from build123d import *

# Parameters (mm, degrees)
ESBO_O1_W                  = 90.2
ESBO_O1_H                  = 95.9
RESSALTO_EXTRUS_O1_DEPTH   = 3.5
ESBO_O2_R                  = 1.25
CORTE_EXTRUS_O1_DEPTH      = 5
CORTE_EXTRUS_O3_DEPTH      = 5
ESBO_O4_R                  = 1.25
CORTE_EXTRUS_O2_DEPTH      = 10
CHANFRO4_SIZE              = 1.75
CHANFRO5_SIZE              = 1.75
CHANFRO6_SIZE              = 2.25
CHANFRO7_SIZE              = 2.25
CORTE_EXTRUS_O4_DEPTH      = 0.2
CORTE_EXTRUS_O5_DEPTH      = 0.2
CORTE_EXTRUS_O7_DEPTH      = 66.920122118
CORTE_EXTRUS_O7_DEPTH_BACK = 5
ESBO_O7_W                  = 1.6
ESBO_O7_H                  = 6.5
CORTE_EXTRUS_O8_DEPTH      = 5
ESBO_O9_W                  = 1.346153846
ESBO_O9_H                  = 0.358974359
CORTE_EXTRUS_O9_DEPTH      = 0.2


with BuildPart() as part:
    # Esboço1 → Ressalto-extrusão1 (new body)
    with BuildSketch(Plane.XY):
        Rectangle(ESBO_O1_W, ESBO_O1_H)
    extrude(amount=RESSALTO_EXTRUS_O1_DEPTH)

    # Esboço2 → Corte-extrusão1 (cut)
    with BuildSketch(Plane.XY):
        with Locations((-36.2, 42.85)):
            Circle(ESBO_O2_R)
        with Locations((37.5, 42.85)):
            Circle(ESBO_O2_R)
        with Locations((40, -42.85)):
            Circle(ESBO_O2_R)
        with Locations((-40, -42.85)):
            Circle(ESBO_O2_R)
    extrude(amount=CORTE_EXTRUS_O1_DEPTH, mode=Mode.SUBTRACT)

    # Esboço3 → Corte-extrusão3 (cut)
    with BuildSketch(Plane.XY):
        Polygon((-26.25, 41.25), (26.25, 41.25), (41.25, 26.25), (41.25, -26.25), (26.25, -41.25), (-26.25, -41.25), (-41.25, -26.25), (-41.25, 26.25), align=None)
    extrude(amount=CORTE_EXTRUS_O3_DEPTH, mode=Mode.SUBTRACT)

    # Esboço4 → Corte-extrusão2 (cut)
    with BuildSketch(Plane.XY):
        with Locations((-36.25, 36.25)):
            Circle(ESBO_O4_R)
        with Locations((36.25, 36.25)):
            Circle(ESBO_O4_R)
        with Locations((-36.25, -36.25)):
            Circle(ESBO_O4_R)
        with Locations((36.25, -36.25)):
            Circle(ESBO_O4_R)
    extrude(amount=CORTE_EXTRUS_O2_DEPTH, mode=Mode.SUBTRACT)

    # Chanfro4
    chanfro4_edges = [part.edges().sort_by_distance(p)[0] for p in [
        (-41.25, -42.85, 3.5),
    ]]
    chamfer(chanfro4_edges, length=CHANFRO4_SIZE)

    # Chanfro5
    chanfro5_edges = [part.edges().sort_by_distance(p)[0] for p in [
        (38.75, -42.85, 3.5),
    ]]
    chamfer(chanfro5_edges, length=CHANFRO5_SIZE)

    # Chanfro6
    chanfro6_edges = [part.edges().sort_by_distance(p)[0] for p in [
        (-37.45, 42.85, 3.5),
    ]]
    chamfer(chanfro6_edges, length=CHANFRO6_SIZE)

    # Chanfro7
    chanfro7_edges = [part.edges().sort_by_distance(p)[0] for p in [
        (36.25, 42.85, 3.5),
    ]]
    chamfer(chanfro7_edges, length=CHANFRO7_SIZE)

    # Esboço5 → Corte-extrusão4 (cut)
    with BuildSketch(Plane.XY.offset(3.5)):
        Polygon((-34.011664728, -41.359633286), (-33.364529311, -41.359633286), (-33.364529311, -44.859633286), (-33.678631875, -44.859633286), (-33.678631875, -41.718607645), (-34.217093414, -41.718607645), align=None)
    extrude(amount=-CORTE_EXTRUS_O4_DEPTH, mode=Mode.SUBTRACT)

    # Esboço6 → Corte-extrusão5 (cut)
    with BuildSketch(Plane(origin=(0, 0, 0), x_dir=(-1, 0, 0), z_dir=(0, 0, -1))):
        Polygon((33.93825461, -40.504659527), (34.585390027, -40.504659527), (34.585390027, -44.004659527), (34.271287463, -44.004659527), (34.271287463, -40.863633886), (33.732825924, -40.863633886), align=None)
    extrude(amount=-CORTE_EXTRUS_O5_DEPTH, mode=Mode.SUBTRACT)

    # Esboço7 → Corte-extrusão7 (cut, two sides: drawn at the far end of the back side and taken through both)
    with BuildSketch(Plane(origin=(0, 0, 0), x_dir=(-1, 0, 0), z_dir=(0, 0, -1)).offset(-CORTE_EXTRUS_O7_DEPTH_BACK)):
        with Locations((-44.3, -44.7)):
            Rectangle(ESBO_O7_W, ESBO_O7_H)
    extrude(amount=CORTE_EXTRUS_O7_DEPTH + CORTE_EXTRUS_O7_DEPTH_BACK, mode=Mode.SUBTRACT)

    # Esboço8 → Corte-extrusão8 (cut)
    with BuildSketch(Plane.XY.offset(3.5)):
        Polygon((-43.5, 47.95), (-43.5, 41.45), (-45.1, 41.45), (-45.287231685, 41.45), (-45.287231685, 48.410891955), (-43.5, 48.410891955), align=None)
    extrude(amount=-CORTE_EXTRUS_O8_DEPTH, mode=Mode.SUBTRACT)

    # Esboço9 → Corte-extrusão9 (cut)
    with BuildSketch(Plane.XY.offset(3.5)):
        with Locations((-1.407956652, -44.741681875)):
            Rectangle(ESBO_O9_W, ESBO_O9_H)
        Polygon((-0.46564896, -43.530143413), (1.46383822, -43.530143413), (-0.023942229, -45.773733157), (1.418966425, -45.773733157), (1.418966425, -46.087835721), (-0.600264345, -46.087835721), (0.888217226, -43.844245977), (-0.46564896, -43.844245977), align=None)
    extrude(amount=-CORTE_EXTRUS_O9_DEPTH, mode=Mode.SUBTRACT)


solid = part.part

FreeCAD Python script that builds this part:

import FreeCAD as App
import Part
import Sketcher

V = App.Vector
Q = App.Units.Quantity


def edges_at(feature, points):
    """Names of the edges that pass closest to the given points."""
    edges = feature.Shape.Edges
    near = lambda p: min(range(len(edges)), key=lambda i: edges[i].distToShape(Part.Vertex(*p))[0])
    return sorted({f"Edge{near(p) + 1}" for p in points})


def add_polygon(sketch, points):
    """Adds a closed chain of lines whose ends are joined by coincident constraints."""
    first, n = sketch.GeometryCount, len(points)
    for a, b in zip(points, points[1:] + points[:1]):
        sketch.addGeometry(Part.LineSegment(App.Vector(*a, 0), App.Vector(*b, 0)), False)
    for i in range(n):
        sketch.addConstraint(Sketcher.Constraint("Coincident", first + i, 2, first + (i + 1) % n, 1))

doc = App.newDocument("Part")
body = doc.addObject("PartDesign::Body", "Body")

# Sketch on XY plane
sketch1 = doc.addObject("Sketcher::SketchObject", "Sketch")
body.addObject(sketch1)
sketch1.AttachmentSupport = (doc.XY_Plane, [""])
sketch1.MapMode = "FlatFace"
add_polygon(sketch1, [(-45, 48), (-45, -48), (45, -48), (45, 48)])  # lines 0-3
sketch1.addConstraint([
    Sketcher.Constraint("Vertical", 0),
    Sketcher.Constraint("Horizontal", 1),
    Sketcher.Constraint("Vertical", 2),
    Sketcher.Constraint("Horizontal", 3),
    Sketcher.Constraint("Symmetric", 0, 2, 2, 2, -1, 1),
    Sketcher.Constraint("DistanceX", 1, 1, 1, 2, Q("90.2 mm")),
    Sketcher.Constraint("DistanceY", 0, 2, 0, 1, Q("95.9 mm")),
])
pad1 = doc.addObject("PartDesign::Pad", "Pad")
body.addObject(pad1)
pad1.Profile = sketch1
pad1.Length = 3.5

# Sketch on XY plane
sketch2 = doc.addObject("Sketcher::SketchObject", "Sketch001")
body.addObject(sketch2)
sketch2.AttachmentSupport = (doc.XY_Plane, [""])
sketch2.MapMode = "FlatFace"
sketch2.addGeometry([
    Part.Circle(V(-36.2, 42.9, 0), V(0, 0, 1), 1.2),
    Part.Circle(V(37.5, 42.9, 0), V(0, 0, 1), 1.2),
    Part.Circle(V(40, -42.9, 0), V(0, 0, 1), 1.2),
    Part.Circle(V(-40, -42.9, 0), V(0, 0, 1), 1.2),
], False)
sketch2.addConstraint([
    Sketcher.Constraint("Equal", 0, 1),
    Sketcher.Constraint("Equal", 1, 2),
    Sketcher.Constraint("Equal", 2, 3),
    Sketcher.Constraint("Symmetric", 2, 3, 3, 3, -2),
    Sketcher.Constraint("Horizontal", 0, 3, 1, 3),
    Sketcher.Constraint("Diameter", 0, Q("2.5 mm")),
    Sketcher.Constraint("DistanceX", -1, 1, 2, 3, Q("40 mm")),
    Sketcher.Constraint("DistanceX", 0, 3, -1, 1, Q("36.2 mm")),
    Sketcher.Constraint("DistanceX", -1, 1, 1, 3, Q("37.5 mm")),
    Sketcher.Constraint("DistanceY", 2, 3, 1, 3, Q("85.7 mm")),
    Sketcher.Constraint("DistanceY", -1, 1, 0, 3, Q("42.85 mm")),
])
pocket1 = doc.addObject("PartDesign::Pocket", "Pocket")
body.addObject(pocket1)
pocket1.Profile = sketch2
pocket1.Length = 5
pocket1.Reversed = True

# Sketch on XY plane
sketch3 = doc.addObject("Sketcher::SketchObject", "Sketch002")
body.addObject(sketch3)
sketch3.AttachmentSupport = (doc.XY_Plane, [""])
sketch3.MapMode = "FlatFace"
add_polygon(sketch3, [(26, 41), (-26, 41), (-41, 26), (-41, -26), (-26, -41), (26, -41), (41, -26), (41, 26)])  # lines 0-7
sketch3.addConstraint([
    Sketcher.Constraint("Horizontal", 0),
    Sketcher.Constraint("Vertical", 2),
    Sketcher.Constraint("Horizontal", 4),
    Sketcher.Constraint("Vertical", 6),
    Sketcher.Constraint("Symmetric", 0, 2, 4, 2, -1, 1),
    Sketcher.Constraint("Symmetric", 1, 2, 5, 2, -1, 1),
    Sketcher.Constraint("Perpendicular", 1, 3),
    Sketcher.Constraint("Perpendicular", 5, 7),
    Sketcher.Constraint("Horizontal", 2, 2, 5, 2),
    Sketcher.Constraint("Horizontal", 1, 2, 6, 2),
    Sketcher.Constraint("Vertical", 0, 2, 3, 2),
    Sketcher.Constraint("Equal", 4, 2),
    Sketcher.Constraint("DistanceX", 0, 2, 0, 1, Q("52.5 mm")),
    Sketcher.Constraint("DistanceX", 1, 2, 0, 2, Q("15 mm")),
])
pocket2 = doc.addObject("PartDesign::Pocket", "Pocket001")
body.addObject(pocket2)
pocket2.Profile = sketch3
pocket2.Length = 5
pocket2.Reversed = True

# Sketch on XY plane
sketch4 = doc.addObject("Sketcher::SketchObject", "Sketch003")
body.addObject(sketch4)
sketch4.AttachmentSupport = (doc.XY_Plane, [""])
sketch4.MapMode = "FlatFace"
sketch4.addGeometry([
    Part.Circle(V(-36.2, 36.2, 0), V(0, 0, 1), 1.2),
    Part.Circle(V(36.2, 36.2, 0), V(0, 0, 1), 1.2),
    Part.Circle(V(-36.2, -36.2, 0), V(0, 0, 1), 1.2),
    Part.Circle(V(36.2, -36.2, 0), V(0, 0, 1), 1.2),
], False)
sketch4.addConstraint([
    Sketcher.Constraint("Equal", 0, 1),
    Sketcher.Constraint("Equal", 1, 2),
    Sketcher.Constraint("Equal", 2, 3),
    Sketcher.Constraint("Symmetric", 1, 3, 2, 3, -1, 1),
    Sketcher.Constraint("Symmetric", 0, 3, 3, 3, -1, 1),
    Sketcher.Constraint("Symmetric", 0, 3, 1, 3, -2),
    Sketcher.Constraint("Diameter", 0, Q("2.5 mm")),
    Sketcher.Constraint("DistanceX", 0, 3, 1, 3, Q("72.5 mm")),
    Sketcher.Constraint("DistanceY", 2, 3, 0, 3, Q("72.5 mm")),
])
pocket3 = doc.addObject("PartDesign::Pocket", "Pocket002")
body.addObject(pocket3)
pocket3.Profile = sketch4
pocket3.Length = 10
pocket3.Reversed = True
doc.recompute()

chamfer = doc.addObject("PartDesign::Chamfer", "Chamfer")
body.addObject(chamfer)
chamfer.Base = (pocket3, edges_at(pocket3, [(-41.25, -42.85, 3.5)]))
chamfer.Size = 1.75
doc.recompute()

chamfer2 = doc.addObject("PartDesign::Chamfer", "Chamfer001")
body.addObject(chamfer2)
chamfer2.Base = (chamfer, edges_at(chamfer, [(38.75, -42.85, 3.5)]))
chamfer2.Size = 1.75
doc.recompute()

chamfer3 = doc.addObject("PartDesign::Chamfer", "Chamfer002")
body.addObject(chamfer3)
chamfer3.Base = (chamfer2, edges_at(chamfer2, [(-37.45, 42.85, 3.5)]))
chamfer3.Size = 2.25
doc.recompute()

chamfer4 = doc.addObject("PartDesign::Chamfer", "Chamfer003")
body.addObject(chamfer4)
chamfer4.Base = (chamfer3, edges_at(chamfer3, [(36.25, 42.85, 3.5)]))
chamfer4.Size = 2.25

# Sketch on XY plane
sketch5 = doc.addObject("Sketcher::SketchObject", "Sketch004")
body.addObject(sketch5)
sketch5.AttachmentSupport = (doc.XY_Plane, [""])
sketch5.MapMode = "FlatFace"
sketch5.AttachmentOffset = App.Placement(V(0, 0, 3.5), App.Rotation())
add_polygon(sketch5, [(-33.36, -41.36), (-34.01, -41.36), (-34.22, -41.72), (-33.68, -41.72), (-33.68, -44.86), (-33.36, -44.86)])  # lines 0-5
sketch5.addConstraint([
    Sketcher.Constraint("Horizontal", 0),
    Sketcher.Constraint("Horizontal", 2),
    Sketcher.Constraint("Vertical", 3),
    Sketcher.Constraint("Horizontal", 4),
    Sketcher.Constraint("Vertical", 5),
    Sketcher.Constraint("DistanceY", 5, 1, 5, 2, Q("3.5 mm")),
    Sketcher.Constraint("Distance", 1, Q("0.413598 mm")),
    Sketcher.Constraint("DistanceX", 2, 1, 2, 2, Q("0.538462 mm")),
    Sketcher.Constraint("DistanceX", 0, 2, 0, 1, Q("0.647135 mm")),
    Sketcher.Constraint("DistanceX", 4, 1, 4, 2, Q("0.314103 mm")),
    Sketcher.Constraint("DistanceX", 2, 2, -1, 1, Q("33.678632 mm")),
    Sketcher.Constraint("DistanceY", 0, 2, -1, 1, Q("41.359633 mm")),
])
pocket4 = doc.addObject("PartDesign::Pocket", "Pocket003")
body.addObject(pocket4)
pocket4.Profile = sketch5
pocket4.Length = 0.2

# Sketch on XY plane
sketch6 = doc.addObject("Sketcher::SketchObject", "Sketch005")
body.addObject(sketch6)
sketch6.AttachmentSupport = (doc.XY_Plane, [""])
sketch6.MapMode = "FlatFace"
add_polygon(sketch6, [(-34.59, -40.5), (-33.94, -40.5), (-33.73, -40.86), (-34.27, -40.86), (-34.27, -44), (-34.59, -44)])  # lines 0-5
sketch6.addConstraint([
    Sketcher.Constraint("Horizontal", 0),
    Sketcher.Constraint("Horizontal", 2),
    Sketcher.Constraint("Vertical", 3),
    Sketcher.Constraint("Horizontal", 4),
    Sketcher.Constraint("Vertical", 5),
    Sketcher.Constraint("DistanceY", 5, 1, 5, 2, Q("3.5 mm")),
    Sketcher.Constraint("Distance", 1, Q("0.413598 mm")),
    Sketcher.Constraint("DistanceX", 2, 2, 2, 1, Q("0.538462 mm")),
    Sketcher.Constraint("DistanceX", 0, 1, 0, 2, Q("0.647135 mm")),
    Sketcher.Constraint("DistanceX", 4, 2, 4, 1, Q("0.314103 mm")),
    Sketcher.Constraint("DistanceY", 0, 2, -1, 1, Q("40.50466 mm")),
    Sketcher.Constraint("DistanceX", 4, 2, -1, 1, Q("34.58539 mm")),
])
pocket5 = doc.addObject("PartDesign::Pocket", "Pocket004")
body.addObject(pocket5)
pocket5.Profile = sketch6
pocket5.Length = 0.2
pocket5.Reversed = True

# Sketch on XY plane
sketch7 = doc.addObject("Sketcher::SketchObject", "Sketch006")
body.addObject(sketch7)
sketch7.AttachmentSupport = (doc.XY_Plane, [""])
sketch7.MapMode = "FlatFace"
add_polygon(sketch7, [(45.1, -41.5), (45.1, -48), (43.5, -48), (43.5, -41.5)])  # lines 0-3
sketch7.addConstraint([
    Sketcher.Constraint("Vertical", 0),
    Sketcher.Constraint("Horizontal", 1),
    Sketcher.Constraint("Vertical", 2),
    Sketcher.Constraint("Horizontal", 3),
    Sketcher.Constraint("DistanceX", 1, 2, 1, 1, Q("1.6 mm")),
    Sketcher.Constraint("DistanceY", 0, 2, 0, 1, Q("6.5 mm")),
    Sketcher.Constraint("DistanceX", -1, 1, 0, 2, Q("45.1 mm")),
    Sketcher.Constraint("DistanceY", 0, 2, -1, 1, Q("47.95 mm")),
])
pocket6 = doc.addObject("PartDesign::Pocket", "Pocket005")
body.addObject(pocket6)
pocket6.Profile = sketch7
pocket6.Type = "ThroughAll"
pocket6.Midplane = True

# Sketch on XY plane
sketch8 = doc.addObject("Sketcher::SketchObject", "Sketch007")
body.addObject(sketch8)
sketch8.AttachmentSupport = (doc.XY_Plane, [""])
sketch8.MapMode = "FlatFace"
sketch8.AttachmentOffset = App.Placement(V(0, 0, 3.5), App.Rotation())
add_polygon(sketch8, [(-43.5, 41.5), (-43.5, 48.4), (-45.3, 48.4), (-45.3, 41.5)])  # lines 0-3
sketch8.addConstraint([
    Sketcher.Constraint("Vertical", 0),
    Sketcher.Constraint("Horizontal", 1),
    Sketcher.Constraint("Vertical", 2),
    Sketcher.Constraint("Horizontal", 3),
    Sketcher.Constraint("DistanceX", 0, 2, -1, 1, Q("43.5 mm")),
    Sketcher.Constraint("DistanceY", -1, 1, 2, 2, Q("41.45 mm")),
    Sketcher.Constraint("DistanceX", 1, 2, 1, 1, Q("1.787232 mm")),
    Sketcher.Constraint("DistanceY", 0, 1, 0, 2, Q("6.960892 mm")),
])
pocket7 = doc.addObject("PartDesign::Pocket", "Pocket006")
body.addObject(pocket7)
pocket7.Profile = sketch8
pocket7.Length = 5

# Sketch on XY plane
sketch9 = doc.addObject("Sketcher::SketchObject", "Sketch008")
body.addObject(sketch9)
sketch9.AttachmentSupport = (doc.XY_Plane, [""])
sketch9.MapMode = "FlatFace"
sketch9.AttachmentOffset = App.Placement(V(0, 0, 3.5), App.Rotation())
add_polygon(sketch9, [(-2.08, -44.56), (-2.08, -44.92), (-0.73, -44.92), (-0.73, -44.56)])  # lines 0-3
add_polygon(sketch9, [(1.46, -43.53), (-0.47, -43.53), (-0.47, -43.84), (0.89, -43.84), (-0.6, -46.09), (1.42, -46.09), (1.42, -45.77), (-0.02, -45.77)])  # lines 4-11
sketch9.addConstraint([
    Sketcher.Constraint("Vertical", 0),
    Sketcher.Constraint("Horizontal", 1),
    Sketcher.Constraint("Vertical", 2),
    Sketcher.Constraint("Horizontal", 3),
    Sketcher.Constraint("Horizontal", 4),
    Sketcher.Constraint("Vertical", 5),
    Sketcher.Constraint("Horizontal", 6),
    Sketcher.Constraint("Horizontal", 8),
    Sketcher.Constraint("Vertical", 9),
    Sketcher.Constraint("Horizontal", 10),
    Sketcher.Constraint("Equal", 5, 9),
    Sketcher.Constraint("DistanceX", 8, 1, 8, 2, Q("2.019231 mm")),
    Sketcher.Constraint("DistanceX", 10, 2, 10, 1, Q("1.442909 mm")),
    Sketcher.Constraint("Distance", 11, Q("2.69206 mm")),
    Sketcher.Constraint("DistanceX", 1, 1, 1, 2, Q("1.346154 mm")),
    Sketcher.Constraint("DistanceX", 4, 2, 4, 1, Q("1.929487 mm")),
    Sketcher.Constraint("DistanceX", 6, 1, 6, 2, Q("1.353866 mm")),
    Sketcher.Constraint("DistanceY", 0, 2, 0, 1, Q("0.358974 mm")),
    Sketcher.Constraint("DistanceY", 5, 2, 5, 1, Q("0.314103 mm")),
    Sketcher.Constraint("DistanceY", 0, 2, -1, 1, Q("44.921169 mm")),
    Sketcher.Constraint("DistanceX", 1, 2, -1, 1, Q("0.73488 mm")),
    Sketcher.Constraint("DistanceX", 4, 2, -1, 1, Q("0.465649 mm")),
    Sketcher.Constraint("DistanceY", 2, 2, 4, 2, Q("1.032051 mm")),
    Sketcher.Constraint("DistanceY", 7, 2, 2, 2, Q("1.525641 mm")),
])
pocket8 = doc.addObject("PartDesign::Pocket", "Pocket007")
body.addObject(pocket8)
pocket8.Profile = sketch9
pocket8.Length = 0.2

doc.recompute()
